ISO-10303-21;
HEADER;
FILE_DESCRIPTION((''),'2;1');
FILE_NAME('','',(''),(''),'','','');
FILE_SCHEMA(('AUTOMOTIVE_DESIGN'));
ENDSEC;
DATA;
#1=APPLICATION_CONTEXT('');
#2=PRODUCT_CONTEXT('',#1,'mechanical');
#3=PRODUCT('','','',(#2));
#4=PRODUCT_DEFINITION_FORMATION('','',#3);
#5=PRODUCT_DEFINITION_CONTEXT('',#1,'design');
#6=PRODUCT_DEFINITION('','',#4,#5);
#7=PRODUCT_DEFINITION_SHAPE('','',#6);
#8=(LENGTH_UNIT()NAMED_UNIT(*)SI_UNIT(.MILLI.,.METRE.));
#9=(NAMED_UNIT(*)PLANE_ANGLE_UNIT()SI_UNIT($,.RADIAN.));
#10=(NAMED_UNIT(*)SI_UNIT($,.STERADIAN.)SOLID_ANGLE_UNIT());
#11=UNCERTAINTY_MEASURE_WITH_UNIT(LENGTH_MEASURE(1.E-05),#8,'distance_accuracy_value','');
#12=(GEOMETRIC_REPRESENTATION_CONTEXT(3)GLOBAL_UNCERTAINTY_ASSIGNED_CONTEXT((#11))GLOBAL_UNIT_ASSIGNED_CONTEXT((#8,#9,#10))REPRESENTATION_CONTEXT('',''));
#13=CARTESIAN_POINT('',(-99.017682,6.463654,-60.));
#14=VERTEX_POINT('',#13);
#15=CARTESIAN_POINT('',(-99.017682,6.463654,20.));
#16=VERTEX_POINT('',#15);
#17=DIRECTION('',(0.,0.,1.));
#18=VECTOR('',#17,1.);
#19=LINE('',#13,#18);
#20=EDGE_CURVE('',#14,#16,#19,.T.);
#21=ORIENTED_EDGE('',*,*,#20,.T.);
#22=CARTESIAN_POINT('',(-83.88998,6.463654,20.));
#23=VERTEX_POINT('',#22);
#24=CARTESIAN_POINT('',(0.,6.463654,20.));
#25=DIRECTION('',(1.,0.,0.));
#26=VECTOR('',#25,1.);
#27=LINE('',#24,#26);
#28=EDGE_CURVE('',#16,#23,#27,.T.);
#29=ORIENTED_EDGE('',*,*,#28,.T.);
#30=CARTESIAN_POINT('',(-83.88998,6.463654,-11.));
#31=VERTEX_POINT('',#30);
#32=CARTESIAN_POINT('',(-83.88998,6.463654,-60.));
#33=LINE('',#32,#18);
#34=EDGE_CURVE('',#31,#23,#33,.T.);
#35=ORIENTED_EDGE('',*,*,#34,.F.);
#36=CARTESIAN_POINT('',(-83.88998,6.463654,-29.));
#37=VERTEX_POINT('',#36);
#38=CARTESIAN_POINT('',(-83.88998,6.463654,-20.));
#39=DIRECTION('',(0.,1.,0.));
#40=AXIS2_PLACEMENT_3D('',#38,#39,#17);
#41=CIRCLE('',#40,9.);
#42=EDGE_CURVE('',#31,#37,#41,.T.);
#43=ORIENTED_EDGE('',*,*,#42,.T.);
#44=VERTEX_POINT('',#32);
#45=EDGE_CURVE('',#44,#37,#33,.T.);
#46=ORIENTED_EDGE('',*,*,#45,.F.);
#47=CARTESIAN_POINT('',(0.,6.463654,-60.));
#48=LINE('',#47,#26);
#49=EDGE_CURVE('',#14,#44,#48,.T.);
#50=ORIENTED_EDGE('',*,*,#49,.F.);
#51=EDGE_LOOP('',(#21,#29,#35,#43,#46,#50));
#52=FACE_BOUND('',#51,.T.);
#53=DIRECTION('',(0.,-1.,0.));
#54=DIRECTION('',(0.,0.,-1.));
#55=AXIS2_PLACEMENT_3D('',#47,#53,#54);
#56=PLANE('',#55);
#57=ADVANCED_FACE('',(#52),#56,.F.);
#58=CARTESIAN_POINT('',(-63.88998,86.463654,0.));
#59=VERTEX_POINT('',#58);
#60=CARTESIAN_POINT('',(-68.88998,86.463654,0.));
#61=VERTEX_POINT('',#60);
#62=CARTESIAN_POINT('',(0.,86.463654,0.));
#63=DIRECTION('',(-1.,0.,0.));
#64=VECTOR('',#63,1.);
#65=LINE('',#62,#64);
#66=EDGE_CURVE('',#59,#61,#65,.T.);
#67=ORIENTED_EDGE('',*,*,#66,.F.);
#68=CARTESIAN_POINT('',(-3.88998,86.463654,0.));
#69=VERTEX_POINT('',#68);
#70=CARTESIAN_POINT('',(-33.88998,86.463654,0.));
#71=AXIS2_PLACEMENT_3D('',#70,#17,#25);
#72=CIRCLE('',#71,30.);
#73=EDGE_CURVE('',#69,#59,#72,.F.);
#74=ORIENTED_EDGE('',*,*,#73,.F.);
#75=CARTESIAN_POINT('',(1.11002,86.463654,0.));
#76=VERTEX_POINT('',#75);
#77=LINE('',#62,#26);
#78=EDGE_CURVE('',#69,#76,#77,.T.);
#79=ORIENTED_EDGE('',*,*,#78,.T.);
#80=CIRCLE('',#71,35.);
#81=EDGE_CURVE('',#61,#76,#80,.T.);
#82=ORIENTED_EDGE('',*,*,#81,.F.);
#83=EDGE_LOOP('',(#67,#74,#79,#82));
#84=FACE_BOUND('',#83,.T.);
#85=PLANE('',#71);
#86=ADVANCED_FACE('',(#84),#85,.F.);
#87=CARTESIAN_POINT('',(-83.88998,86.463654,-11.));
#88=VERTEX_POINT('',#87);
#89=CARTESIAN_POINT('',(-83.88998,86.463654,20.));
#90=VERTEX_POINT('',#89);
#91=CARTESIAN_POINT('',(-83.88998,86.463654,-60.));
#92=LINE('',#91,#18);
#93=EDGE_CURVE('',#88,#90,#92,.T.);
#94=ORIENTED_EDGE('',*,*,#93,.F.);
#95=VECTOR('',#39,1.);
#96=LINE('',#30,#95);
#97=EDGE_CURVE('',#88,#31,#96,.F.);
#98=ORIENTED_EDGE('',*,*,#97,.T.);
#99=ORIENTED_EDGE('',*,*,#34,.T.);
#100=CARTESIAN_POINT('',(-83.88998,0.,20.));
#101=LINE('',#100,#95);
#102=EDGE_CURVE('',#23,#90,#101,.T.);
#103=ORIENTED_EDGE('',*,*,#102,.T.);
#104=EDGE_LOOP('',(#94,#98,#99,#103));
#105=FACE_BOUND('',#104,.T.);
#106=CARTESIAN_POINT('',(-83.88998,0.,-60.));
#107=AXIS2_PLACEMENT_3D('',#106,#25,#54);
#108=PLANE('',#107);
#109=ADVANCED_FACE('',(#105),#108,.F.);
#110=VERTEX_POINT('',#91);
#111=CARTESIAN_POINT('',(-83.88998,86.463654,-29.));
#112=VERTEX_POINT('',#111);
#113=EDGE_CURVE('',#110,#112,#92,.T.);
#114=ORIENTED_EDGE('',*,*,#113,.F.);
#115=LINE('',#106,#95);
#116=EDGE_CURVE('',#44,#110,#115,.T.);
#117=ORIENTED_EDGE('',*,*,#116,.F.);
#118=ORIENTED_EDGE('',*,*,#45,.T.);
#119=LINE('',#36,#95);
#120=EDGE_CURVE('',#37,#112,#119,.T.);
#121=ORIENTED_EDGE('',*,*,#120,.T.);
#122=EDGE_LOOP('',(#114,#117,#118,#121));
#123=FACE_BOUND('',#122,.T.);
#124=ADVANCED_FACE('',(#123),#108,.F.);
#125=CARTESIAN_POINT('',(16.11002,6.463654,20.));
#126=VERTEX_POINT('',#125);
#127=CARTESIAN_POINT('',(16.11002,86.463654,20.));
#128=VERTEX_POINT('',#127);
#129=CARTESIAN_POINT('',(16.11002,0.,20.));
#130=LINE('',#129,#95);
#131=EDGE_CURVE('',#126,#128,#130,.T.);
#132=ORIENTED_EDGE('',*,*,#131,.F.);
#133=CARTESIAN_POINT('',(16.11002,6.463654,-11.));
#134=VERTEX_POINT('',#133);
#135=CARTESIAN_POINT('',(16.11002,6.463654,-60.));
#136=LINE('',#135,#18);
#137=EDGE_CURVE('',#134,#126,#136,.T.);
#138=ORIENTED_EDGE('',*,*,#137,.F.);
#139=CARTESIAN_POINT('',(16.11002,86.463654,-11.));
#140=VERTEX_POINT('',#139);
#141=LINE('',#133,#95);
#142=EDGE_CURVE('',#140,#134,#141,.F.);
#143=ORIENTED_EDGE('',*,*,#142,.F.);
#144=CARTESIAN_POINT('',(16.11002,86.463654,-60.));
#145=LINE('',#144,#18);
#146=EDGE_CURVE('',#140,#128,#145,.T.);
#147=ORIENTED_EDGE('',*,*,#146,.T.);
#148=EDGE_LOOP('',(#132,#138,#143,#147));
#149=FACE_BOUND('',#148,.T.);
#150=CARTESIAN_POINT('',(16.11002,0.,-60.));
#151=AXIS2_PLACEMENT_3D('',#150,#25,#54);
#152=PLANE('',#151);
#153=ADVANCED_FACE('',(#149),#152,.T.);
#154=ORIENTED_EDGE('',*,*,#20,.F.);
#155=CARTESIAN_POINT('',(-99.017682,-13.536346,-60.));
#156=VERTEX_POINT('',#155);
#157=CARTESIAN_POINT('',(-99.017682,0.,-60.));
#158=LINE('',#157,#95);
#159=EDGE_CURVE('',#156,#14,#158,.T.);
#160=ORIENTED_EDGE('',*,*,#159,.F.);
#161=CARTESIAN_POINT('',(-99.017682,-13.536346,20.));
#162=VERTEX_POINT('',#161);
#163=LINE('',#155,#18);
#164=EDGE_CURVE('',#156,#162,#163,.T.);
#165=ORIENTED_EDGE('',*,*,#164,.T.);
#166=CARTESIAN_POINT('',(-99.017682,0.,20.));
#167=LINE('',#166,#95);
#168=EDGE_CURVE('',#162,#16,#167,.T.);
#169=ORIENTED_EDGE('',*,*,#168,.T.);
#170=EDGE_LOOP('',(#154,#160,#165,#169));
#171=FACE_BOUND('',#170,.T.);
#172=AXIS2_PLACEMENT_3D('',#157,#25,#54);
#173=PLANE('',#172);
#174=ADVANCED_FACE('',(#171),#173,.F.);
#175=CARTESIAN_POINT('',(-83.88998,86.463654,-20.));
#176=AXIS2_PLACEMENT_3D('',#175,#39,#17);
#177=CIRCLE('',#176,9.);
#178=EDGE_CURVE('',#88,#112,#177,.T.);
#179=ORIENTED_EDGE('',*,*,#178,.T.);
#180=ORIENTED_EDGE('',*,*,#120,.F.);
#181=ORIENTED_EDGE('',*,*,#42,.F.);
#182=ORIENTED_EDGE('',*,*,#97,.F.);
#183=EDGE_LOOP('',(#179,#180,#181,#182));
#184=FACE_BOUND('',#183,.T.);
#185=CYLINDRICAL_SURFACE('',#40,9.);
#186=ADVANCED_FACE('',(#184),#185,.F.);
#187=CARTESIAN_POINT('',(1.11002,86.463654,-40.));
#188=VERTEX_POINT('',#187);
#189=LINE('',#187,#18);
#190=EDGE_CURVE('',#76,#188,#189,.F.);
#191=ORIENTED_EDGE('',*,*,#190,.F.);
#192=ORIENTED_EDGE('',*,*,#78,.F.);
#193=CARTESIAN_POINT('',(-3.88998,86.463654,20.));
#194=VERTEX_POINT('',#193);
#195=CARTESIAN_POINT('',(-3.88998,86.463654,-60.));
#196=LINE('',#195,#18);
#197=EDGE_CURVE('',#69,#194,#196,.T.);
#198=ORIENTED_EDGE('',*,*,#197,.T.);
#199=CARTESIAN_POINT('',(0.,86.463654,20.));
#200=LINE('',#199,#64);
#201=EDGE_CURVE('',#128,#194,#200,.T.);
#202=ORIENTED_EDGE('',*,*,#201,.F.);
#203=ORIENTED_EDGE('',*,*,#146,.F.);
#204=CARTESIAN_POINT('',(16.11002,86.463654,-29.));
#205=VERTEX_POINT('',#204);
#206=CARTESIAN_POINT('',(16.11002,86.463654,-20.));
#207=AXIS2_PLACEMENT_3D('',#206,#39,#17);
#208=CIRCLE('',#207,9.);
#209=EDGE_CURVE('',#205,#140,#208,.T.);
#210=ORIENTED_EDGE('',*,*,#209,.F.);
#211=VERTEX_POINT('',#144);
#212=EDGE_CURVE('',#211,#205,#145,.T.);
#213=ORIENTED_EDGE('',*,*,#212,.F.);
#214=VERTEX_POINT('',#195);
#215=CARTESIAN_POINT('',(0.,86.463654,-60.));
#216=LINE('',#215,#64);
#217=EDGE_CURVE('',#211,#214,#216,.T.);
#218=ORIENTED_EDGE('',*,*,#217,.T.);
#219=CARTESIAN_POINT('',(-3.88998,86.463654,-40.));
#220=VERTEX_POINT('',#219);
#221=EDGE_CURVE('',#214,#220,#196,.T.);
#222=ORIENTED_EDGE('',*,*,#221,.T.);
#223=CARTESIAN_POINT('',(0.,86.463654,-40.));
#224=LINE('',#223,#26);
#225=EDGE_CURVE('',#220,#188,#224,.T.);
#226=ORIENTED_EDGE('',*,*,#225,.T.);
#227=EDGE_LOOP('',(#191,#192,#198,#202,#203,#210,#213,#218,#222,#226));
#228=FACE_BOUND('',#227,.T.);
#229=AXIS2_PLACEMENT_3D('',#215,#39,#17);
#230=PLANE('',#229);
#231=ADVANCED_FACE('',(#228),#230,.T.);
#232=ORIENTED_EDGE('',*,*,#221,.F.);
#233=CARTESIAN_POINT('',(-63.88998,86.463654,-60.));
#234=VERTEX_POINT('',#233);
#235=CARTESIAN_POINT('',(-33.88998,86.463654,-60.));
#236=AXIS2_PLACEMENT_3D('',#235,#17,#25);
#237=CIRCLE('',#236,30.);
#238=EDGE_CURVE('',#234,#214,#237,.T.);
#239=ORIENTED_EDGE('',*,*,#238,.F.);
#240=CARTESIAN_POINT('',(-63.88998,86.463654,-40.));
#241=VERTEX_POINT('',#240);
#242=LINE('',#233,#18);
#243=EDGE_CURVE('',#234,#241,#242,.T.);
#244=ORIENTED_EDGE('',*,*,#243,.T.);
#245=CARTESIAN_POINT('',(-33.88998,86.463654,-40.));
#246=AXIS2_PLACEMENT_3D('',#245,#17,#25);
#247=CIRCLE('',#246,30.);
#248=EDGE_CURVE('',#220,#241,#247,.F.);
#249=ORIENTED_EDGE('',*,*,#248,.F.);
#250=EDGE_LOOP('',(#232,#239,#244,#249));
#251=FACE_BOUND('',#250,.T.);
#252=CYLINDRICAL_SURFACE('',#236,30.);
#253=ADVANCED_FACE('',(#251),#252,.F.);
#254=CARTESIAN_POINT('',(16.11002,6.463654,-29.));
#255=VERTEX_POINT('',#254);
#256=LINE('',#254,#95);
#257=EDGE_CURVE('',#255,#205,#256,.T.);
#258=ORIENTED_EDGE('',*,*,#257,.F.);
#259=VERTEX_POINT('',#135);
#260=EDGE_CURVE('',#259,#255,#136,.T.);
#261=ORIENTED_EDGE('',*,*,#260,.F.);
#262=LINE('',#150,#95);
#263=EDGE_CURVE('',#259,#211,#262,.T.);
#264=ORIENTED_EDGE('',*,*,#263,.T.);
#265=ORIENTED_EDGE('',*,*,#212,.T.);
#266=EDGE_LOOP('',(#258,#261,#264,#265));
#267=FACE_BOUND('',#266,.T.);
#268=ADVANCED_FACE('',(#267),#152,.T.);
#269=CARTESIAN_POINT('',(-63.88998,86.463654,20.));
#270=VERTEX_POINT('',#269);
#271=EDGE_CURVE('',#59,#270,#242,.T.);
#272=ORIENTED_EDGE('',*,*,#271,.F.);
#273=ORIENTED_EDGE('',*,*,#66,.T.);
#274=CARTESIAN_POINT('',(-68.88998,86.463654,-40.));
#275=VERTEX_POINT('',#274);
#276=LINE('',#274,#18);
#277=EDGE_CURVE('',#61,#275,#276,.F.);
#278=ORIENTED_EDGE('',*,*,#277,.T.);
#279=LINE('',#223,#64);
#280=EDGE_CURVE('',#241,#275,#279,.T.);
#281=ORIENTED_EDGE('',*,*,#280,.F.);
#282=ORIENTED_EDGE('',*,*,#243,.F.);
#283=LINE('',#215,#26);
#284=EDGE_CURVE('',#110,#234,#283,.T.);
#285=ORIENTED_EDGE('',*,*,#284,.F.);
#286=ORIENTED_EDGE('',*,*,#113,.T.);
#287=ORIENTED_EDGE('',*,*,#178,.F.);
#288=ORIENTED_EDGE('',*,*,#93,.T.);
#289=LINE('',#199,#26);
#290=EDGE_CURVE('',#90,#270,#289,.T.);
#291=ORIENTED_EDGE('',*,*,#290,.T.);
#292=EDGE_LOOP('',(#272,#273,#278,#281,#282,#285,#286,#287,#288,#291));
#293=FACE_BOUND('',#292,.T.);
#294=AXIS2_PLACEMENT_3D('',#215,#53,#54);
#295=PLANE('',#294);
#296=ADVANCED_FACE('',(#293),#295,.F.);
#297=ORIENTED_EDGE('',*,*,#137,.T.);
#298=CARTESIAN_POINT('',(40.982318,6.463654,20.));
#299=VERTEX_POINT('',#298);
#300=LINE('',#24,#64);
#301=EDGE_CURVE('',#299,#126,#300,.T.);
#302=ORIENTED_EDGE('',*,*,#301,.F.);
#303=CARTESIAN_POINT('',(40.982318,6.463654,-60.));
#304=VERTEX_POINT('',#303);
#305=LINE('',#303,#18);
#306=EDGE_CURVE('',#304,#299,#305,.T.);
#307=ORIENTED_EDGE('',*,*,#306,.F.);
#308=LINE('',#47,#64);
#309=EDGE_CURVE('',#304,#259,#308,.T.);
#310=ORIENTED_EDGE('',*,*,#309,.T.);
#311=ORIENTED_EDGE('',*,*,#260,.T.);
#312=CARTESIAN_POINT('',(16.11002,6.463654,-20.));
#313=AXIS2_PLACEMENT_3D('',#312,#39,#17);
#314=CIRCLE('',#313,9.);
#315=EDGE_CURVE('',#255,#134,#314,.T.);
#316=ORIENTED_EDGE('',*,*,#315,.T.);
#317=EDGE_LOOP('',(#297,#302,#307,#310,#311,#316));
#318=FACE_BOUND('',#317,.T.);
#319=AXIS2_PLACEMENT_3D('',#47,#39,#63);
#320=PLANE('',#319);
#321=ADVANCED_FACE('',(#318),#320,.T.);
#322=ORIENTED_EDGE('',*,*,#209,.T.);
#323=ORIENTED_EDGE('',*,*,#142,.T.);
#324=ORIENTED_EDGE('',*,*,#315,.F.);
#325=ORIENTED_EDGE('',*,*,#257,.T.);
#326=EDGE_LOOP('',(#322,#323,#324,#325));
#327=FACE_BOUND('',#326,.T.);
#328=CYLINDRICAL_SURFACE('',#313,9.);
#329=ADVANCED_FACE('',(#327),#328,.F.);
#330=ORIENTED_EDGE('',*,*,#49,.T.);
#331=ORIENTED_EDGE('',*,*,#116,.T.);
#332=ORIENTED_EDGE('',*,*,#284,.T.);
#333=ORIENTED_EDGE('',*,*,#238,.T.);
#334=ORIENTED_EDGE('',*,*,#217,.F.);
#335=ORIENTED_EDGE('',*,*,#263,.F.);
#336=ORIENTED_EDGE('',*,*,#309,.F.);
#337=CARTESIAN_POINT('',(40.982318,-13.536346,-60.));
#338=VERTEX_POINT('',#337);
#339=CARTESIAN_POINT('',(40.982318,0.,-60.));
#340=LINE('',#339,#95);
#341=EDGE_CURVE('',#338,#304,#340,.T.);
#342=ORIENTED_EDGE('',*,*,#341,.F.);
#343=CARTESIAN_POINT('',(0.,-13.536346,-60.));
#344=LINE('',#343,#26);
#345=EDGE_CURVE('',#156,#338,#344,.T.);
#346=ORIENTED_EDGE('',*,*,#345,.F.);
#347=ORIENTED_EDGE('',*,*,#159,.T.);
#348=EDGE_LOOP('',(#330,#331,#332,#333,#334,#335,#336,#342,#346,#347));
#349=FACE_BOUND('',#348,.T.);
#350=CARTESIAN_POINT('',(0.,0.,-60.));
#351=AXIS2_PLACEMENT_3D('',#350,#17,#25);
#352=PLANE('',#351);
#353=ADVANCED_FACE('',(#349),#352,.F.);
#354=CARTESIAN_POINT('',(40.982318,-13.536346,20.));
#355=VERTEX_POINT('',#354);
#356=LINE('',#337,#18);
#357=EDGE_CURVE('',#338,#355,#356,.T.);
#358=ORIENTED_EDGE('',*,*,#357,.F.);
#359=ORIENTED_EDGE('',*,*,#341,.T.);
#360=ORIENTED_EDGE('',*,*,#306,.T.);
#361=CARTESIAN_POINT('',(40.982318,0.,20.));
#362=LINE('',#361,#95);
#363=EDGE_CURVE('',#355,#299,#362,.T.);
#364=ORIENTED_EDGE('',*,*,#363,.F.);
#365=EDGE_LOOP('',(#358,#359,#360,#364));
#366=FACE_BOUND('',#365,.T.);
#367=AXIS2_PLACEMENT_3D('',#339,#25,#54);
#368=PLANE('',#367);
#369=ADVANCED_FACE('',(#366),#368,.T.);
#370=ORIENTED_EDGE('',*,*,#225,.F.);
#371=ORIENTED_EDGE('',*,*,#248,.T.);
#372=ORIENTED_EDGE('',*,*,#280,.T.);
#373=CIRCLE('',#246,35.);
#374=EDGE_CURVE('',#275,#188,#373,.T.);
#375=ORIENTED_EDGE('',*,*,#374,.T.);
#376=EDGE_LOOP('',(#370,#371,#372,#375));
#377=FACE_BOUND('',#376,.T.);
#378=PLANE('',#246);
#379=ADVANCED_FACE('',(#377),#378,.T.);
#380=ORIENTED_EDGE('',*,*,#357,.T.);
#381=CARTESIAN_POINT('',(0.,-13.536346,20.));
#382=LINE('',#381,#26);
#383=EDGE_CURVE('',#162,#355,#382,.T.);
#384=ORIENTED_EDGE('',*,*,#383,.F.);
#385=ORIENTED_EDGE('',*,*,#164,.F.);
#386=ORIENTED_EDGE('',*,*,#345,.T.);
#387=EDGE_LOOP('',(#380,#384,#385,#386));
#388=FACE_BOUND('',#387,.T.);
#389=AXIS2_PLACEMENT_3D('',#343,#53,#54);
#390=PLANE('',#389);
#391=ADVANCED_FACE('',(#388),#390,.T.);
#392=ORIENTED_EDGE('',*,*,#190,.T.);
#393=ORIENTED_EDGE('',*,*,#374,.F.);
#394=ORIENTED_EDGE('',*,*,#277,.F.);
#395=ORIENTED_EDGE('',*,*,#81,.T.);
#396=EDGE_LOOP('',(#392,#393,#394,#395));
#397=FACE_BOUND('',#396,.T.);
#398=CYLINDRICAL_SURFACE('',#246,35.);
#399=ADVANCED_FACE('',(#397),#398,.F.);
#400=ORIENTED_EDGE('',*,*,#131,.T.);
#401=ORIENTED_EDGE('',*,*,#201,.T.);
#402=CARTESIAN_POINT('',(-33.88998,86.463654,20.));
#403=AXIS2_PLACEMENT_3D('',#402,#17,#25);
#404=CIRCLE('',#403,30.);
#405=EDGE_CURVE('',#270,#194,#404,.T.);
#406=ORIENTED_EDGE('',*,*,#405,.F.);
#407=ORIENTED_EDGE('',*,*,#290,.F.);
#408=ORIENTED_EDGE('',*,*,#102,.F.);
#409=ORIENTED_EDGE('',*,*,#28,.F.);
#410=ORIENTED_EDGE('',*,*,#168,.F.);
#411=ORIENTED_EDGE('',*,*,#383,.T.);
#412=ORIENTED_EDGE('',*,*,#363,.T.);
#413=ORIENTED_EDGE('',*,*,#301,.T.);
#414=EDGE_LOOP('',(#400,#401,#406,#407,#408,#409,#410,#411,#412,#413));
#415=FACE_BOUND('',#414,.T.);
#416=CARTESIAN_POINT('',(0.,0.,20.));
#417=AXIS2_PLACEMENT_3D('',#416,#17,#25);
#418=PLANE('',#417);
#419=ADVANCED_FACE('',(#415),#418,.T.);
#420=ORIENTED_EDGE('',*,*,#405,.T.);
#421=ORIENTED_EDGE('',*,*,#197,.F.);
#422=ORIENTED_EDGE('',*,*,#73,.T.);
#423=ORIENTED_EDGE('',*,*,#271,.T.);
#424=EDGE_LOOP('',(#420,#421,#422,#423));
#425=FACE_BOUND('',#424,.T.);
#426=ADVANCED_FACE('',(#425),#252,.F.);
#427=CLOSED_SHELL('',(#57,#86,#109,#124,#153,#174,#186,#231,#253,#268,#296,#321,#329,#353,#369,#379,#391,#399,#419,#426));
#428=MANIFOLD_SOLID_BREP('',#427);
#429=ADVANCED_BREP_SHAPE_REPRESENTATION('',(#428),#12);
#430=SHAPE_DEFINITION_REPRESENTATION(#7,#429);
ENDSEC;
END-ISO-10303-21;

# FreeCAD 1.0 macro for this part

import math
import FreeCAD as App
import Part
import Sketcher
from FreeCAD import Vector

doc = App.newDocument("Part")
body = doc.addObject("PartDesign::Body", "Body")

sketch1 = doc.addObject("Sketcher::SketchObject", "Sketch")
body.addObject(sketch1)
sketch1.AttachmentSupport = (doc.XY_Plane, [""])
sketch1.MapMode = "FlatFace"
sketch1.addGeometry([
    Part.LineSegment(Vector(-99, 6, 0), Vector(-99, -14, 0)),
    Part.LineSegment(Vector(-99, -14, 0), Vector(41, -14, 0)),
    Part.LineSegment(Vector(41, -14, 0), Vector(41, 6, 0)),
    Part.LineSegment(Vector(41, 6, 0), Vector(16, 6, 0)),
    Part.LineSegment(Vector(16, 6, 0), Vector(16, 86, 0)),
    Part.LineSegment(Vector(16, 86, 0), Vector(-4, 86, 0)),
    Part.ArcOfCircle(Part.Circle(Vector(-34, 86, 0), Vector(0, 0, 1), 30), math.radians(180), math.radians(360)),
    Part.LineSegment(Vector(-64, 86, 0), Vector(-84, 86, 0)),
    Part.LineSegment(Vector(-84, 86, 0), Vector(-84, 6, 0)),
    Part.LineSegment(Vector(-84, 6, 0), Vector(-99, 6, 0)),
], False)
sketch1.addConstraint([
    Sketcher.Constraint("Coincident", 0, 2, 1, 1),
    Sketcher.Constraint("Coincident", 1, 2, 2, 1),
    Sketcher.Constraint("Coincident", 2, 2, 3, 1),
    Sketcher.Constraint("Coincident", 3, 2, 4, 1),
    Sketcher.Constraint("Coincident", 4, 2, 5, 1),
    Sketcher.Constraint("Coincident", 5, 2, 6, 2),
    Sketcher.Constraint("Coincident", 6, 1, 7, 1),
    Sketcher.Constraint("Coincident", 7, 2, 8, 1),
    Sketcher.Constraint("Coincident", 8, 2, 9, 1),
    Sketcher.Constraint("Coincident", 9, 2, 0, 1),
    Sketcher.Constraint("Vertical", 0),
    Sketcher.Constraint("Horizontal", 1),
    Sketcher.Constraint("Vertical", 2),
    Sketcher.Constraint("Horizontal", 3),
    Sketcher.Constraint("Vertical", 4),
    Sketcher.Constraint("Horizontal", 5),
    Sketcher.Constraint("Horizontal", 7),
    Sketcher.Constraint("Vertical", 8),
    Sketcher.Constraint("Horizontal", 9),
    Sketcher.Constraint("Horizontal", 6, 3, 4, 2),
    Sketcher.Constraint("Horizontal", 5, 2, 6, 1),
    Sketcher.Constraint("Horizontal", 3, 2, 8, 2),
    Sketcher.Constraint("Equal", 5, 7),
    Sketcher.Constraint("Equal", 7, 0),
    Sketcher.Constraint("Radius", 6, 30.0),
    Sketcher.Constraint("DistanceX", 1, 1, 1, 2, 140.0),
    Sketcher.Constraint("DistanceX", 5, 2, 5, 1, 20.0),
    Sketcher.Constraint("DistanceY", 4, 1, 4, 2, 80.0),
    Sketcher.Constraint("DistanceX", 3, 2, 3, 1, 24.872299),
    Sketcher.Constraint("DistanceX", 6, 3, -1, 1, 33.88998),
    Sketcher.Constraint("DistanceY", -1, 1, 6, 3, 86.463654),
])
pad1 = doc.addObject("PartDesign::Pad", "Pad")
body.addObject(pad1)
pad1.Profile = sketch1
pad1.Length = 80
pad1.Reversed = True

sketch2 = doc.addObject("Sketcher::SketchObject", "Sketch001")
body.addObject(sketch2)
sketch2.AttachmentSupport = (doc.XZ_Plane, [""])
sketch2.MapMode = "FlatFace"
sketch2.AttachmentOffset = App.Placement(Vector(0, 0, -86.463654), App.Rotation())
sketch2.addGeometry([
    Part.Circle(Vector(16, -40, 0), Vector(0, 0, 1), 9),
    Part.Circle(Vector(-84, -40, 0), Vector(0, 0, 1), 9),
], False)
sketch2.addConstraint([
    Sketcher.Constraint("Equal", 0, 1),
    Sketcher.Constraint("Horizontal", 0, 3, 1, 3),
    Sketcher.Constraint("Diameter", 0, 18.0),
    Sketcher.Constraint("DistanceY", 0, 3, -1, 1, 40.0),
    Sketcher.Constraint("DistanceX", 1, 3, 0, 3, 100.0),
    Sketcher.Constraint("DistanceX", -1, 1, 0, 3, 16.11002),
])
pocket1 = doc.addObject("PartDesign::Pocket", "Pocket")
body.addObject(pocket1)
pocket1.Profile = sketch2
pocket1.Length = 80
pocket1.Reversed = True
body2 = doc.addObject("PartDesign::Body", "Body001")
doc.recompute()

body.Placement = App.Placement(Vector(0, 0, 20), App.Rotation(Vector(0, 0, 1), 0))
boolean = doc.addObject("PartDesign::Boolean", "Boolean")
body2.addObject(boolean)
boolean.Type = "Fuse"
boolean.addObjects([body])

sketch3 = doc.addObject("Sketcher::SketchObject", "Sketch002")
body2.addObject(sketch3)
sketch3.AttachmentSupport = (doc.getObject("XY_Plane001"), [""])
sketch3.MapMode = "FlatFace"
sketch3.addGeometry(Part.Circle(Vector(-34, 86, 0), Vector(0, 0, 1), 35), False)
sketch3.addConstraint([
    Sketcher.Constraint("Diameter", 0, 70.0),
    Sketcher.Constraint("DistanceX", 0, 3, -1, 1, 33.88998),
    Sketcher.Constraint("DistanceY", -1, 1, 0, 3, 86.463654),
])
pocket2 = doc.addObject("PartDesign::Pocket", "Pocket001")
body2.addObject(pocket2)
pocket2.Profile = sketch3
pocket2.Length = 40

doc.recompute()
